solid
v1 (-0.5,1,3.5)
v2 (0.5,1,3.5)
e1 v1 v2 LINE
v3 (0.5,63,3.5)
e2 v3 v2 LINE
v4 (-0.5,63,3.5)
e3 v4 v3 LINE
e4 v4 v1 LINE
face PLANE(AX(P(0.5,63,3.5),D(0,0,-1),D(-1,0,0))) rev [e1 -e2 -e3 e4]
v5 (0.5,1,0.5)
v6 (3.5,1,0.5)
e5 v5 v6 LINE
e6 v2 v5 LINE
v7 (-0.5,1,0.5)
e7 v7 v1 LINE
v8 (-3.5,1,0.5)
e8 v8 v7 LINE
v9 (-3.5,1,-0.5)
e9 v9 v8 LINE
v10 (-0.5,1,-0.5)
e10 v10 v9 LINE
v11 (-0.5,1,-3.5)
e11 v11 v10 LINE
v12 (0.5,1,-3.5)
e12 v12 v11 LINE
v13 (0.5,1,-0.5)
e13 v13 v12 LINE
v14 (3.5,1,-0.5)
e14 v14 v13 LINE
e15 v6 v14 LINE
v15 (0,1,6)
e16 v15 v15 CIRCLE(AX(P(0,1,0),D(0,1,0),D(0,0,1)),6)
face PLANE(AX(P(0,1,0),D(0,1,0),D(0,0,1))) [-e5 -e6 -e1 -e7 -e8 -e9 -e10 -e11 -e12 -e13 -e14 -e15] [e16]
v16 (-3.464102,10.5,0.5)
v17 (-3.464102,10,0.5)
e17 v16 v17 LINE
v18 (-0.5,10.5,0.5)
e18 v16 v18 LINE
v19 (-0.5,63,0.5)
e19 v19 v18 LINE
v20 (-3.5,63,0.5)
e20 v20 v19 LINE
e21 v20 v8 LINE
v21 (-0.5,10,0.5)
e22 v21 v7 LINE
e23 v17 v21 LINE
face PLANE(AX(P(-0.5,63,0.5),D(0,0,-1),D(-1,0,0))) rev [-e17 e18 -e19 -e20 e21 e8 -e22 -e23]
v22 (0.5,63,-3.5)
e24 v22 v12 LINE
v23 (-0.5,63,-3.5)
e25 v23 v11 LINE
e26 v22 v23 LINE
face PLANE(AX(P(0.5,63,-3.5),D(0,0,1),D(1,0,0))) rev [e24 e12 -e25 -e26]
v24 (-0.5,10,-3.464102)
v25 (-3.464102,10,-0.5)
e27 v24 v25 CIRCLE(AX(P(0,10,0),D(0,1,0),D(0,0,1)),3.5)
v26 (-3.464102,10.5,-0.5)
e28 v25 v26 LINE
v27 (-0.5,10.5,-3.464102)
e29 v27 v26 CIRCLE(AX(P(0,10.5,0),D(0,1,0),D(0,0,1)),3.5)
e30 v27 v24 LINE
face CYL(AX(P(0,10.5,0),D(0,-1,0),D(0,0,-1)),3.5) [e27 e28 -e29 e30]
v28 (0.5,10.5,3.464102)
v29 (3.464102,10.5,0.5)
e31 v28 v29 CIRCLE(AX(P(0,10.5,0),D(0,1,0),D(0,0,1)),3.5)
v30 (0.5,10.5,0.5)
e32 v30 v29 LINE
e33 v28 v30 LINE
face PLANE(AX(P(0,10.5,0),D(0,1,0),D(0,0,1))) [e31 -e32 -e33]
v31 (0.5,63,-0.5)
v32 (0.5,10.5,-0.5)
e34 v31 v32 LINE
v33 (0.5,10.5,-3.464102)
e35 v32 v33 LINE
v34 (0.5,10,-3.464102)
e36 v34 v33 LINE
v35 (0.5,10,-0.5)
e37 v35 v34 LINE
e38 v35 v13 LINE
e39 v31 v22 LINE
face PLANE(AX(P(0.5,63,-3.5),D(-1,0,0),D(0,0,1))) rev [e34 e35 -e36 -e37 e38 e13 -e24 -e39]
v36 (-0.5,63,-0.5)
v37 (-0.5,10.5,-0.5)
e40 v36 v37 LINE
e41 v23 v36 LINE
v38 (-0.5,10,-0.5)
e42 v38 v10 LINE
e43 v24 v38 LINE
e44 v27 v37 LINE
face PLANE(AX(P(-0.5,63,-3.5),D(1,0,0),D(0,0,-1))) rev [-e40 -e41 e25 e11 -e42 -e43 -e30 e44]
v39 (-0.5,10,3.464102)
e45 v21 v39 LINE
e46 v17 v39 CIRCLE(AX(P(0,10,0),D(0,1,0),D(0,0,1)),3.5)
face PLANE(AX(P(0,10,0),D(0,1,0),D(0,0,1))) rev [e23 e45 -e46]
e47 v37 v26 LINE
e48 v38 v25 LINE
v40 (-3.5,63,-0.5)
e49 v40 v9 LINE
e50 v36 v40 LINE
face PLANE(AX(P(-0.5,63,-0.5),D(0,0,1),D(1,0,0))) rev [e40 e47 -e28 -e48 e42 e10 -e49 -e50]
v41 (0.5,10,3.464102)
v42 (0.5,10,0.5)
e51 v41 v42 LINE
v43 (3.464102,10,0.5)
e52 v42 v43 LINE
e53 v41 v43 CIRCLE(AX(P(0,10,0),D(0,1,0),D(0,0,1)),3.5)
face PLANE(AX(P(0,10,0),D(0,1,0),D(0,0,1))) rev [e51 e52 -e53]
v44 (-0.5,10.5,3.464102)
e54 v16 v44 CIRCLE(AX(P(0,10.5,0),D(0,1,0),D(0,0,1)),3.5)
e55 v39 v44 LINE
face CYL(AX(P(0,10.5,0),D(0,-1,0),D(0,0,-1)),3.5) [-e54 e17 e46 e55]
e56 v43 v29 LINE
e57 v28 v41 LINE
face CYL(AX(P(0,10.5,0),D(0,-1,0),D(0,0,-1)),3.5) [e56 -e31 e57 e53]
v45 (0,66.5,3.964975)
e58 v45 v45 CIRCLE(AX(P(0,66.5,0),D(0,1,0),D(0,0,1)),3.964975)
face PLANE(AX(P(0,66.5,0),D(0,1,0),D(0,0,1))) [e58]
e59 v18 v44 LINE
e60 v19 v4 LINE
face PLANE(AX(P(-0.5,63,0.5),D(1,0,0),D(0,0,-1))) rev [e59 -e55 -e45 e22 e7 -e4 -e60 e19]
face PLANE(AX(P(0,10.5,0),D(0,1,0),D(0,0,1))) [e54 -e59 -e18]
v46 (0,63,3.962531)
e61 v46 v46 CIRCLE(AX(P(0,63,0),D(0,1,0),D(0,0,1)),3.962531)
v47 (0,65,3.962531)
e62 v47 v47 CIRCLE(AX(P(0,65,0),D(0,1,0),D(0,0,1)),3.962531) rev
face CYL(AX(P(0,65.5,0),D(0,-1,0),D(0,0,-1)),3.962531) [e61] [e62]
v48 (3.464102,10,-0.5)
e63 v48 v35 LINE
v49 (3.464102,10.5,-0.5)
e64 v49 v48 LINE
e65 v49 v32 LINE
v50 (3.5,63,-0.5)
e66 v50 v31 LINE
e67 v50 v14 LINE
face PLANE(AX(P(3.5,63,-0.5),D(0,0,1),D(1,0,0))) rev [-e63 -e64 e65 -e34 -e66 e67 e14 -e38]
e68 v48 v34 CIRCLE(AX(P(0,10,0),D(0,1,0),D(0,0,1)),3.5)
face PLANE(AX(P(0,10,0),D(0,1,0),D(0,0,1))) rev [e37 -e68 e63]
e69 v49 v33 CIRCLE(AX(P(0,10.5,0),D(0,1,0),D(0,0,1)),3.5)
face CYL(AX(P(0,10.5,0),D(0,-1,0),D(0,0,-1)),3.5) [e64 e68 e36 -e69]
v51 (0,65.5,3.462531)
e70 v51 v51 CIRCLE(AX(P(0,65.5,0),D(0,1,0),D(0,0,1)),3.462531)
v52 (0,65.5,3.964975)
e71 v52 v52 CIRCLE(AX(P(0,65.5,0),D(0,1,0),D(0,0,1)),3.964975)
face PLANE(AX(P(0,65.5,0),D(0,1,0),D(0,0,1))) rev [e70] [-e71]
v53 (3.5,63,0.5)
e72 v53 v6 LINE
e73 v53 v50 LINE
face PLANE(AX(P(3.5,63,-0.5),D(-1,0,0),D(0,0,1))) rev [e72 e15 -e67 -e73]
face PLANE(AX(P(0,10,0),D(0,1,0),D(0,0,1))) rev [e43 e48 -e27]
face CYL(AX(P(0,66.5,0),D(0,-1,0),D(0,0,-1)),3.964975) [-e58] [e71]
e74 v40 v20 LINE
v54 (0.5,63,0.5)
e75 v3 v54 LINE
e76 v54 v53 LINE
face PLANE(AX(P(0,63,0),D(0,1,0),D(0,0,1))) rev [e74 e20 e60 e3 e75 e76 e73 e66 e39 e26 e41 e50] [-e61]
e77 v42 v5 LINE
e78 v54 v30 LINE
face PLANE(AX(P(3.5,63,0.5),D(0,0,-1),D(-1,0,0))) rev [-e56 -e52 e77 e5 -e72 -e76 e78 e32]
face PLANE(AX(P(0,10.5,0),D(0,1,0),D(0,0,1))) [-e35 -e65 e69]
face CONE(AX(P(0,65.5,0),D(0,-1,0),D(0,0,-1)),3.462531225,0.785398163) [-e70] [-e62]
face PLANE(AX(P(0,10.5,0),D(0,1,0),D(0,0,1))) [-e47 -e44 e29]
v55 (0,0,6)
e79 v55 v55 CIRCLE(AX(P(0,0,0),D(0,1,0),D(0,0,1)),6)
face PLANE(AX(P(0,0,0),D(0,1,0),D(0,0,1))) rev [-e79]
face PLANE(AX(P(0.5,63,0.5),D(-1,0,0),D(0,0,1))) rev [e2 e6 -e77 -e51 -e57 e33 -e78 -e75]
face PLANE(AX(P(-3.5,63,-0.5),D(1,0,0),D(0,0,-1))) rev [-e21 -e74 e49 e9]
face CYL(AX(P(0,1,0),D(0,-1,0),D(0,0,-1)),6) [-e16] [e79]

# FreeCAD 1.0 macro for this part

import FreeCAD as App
import Part
import Sketcher


def edges_at(feature, points):
    """Names of the edges that pass closest to the given points."""
    edges = feature.Shape.Edges
    near = lambda p: min(range(len(edges)), key=lambda i: edges[i].distToShape(Part.Vertex(*p))[0])
    return sorted({f"Edge{near(p) + 1}" for p in points})


def add_polygon(sketch, points):
    """Adds a closed chain of lines whose ends are joined by coincident constraints."""
    first, n = sketch.GeometryCount, len(points)
    for a, b in zip(points, points[1:] + points[:1]):
        sketch.addGeometry(Part.LineSegment(App.Vector(*a, 0), App.Vector(*b, 0)), False)
    for i in range(n):
        sketch.addConstraint(Sketcher.Constraint("Coincident", first + i, 2, first + (i + 1) % n, 1))

doc = App.newDocument("Part")
body = doc.addObject("PartDesign::Body", "Body")

sketch1 = body.newObject("Sketcher::SketchObject", "Sketch")
sketch1.AttachmentSupport = (doc.getObject("XZ_Plane"), [""])
sketch1.MapMode = "FlatFace"
sketch1.addGeometry(Part.Circle(App.Vector(0, 0, 0), App.Vector(0, 0, 1), 6), False)
sketch1.addConstraint([
    Sketcher.Constraint("Coincident", 0, 3, -1, 1),
    Sketcher.Constraint("Diameter", 0, 12.0),
])
pad1 = body.newObject("PartDesign::Pad", "Pad")
pad1.Profile = sketch1
pad1.Length = 1
pad1.Reversed = True

sketch2 = body.newObject("Sketcher::SketchObject", "Sketch001")
sketch2.AttachmentSupport = (doc.getObject("XZ_Plane"), [""])
sketch2.MapMode = "FlatFace"
sketch2.AttachmentOffset = App.Placement(App.Vector(0, 0, -1), App.Rotation())
add_polygon(sketch2, [(-0.5, 0.5), (-0.5, 3.5), (0.5, 3.5), (0.5, 0.5), (3.5, 0.5), (3.5, -0.5), (0.5, -0.5), (0.5, -3.5), (-0.5, -3.5), (-0.5, -0.5), (-3.5, -0.5), (-3.5, 0.5)])
sketch2.addConstraint([
    Sketcher.Constraint("Vertical", 0),
    Sketcher.Constraint("Horizontal", 1),
    Sketcher.Constraint("Vertical", 2),
    Sketcher.Constraint("Horizontal", 3),
    Sketcher.Constraint("Vertical", 4),
    Sketcher.Constraint("Horizontal", 5),
    Sketcher.Constraint("Vertical", 6),
    Sketcher.Constraint("Horizontal", 7),
    Sketcher.Constraint("Vertical", 8),
    Sketcher.Constraint("Horizontal", 9),
    Sketcher.Constraint("Vertical", 10),
    Sketcher.Constraint("Horizontal", 11),
    Sketcher.Constraint("Symmetric", 0, 2, 6, 2, -1, 1),
    Sketcher.Constraint("Symmetric", 2, 2, 8, 2, -1, 1),
    Sketcher.Constraint("Symmetric", 4, 2, 10, 2, -1, 1),
    Sketcher.Constraint("Symmetric", 5, 2, 8, 2, -2),
    Sketcher.Constraint("Equal", 11, 0),
    Sketcher.Constraint("Equal", 7, 4),
    Sketcher.Constraint("DistanceX", 1, 1, 1, 2, 1.0),
    Sketcher.Constraint("DistanceX", 3, 1, 3, 2, 3.0),
])
pad2 = body.newObject("PartDesign::Pad", "Pad001")
pad2.Profile = sketch2
pad2.Length = 62
pad2.Reversed = True

sketch3 = body.newObject("Sketcher::SketchObject", "Sketch002")
sketch3.AttachmentSupport = (doc.getObject("XZ_Plane"), [""])
sketch3.MapMode = "FlatFace"
sketch3.AttachmentOffset = App.Placement(App.Vector(0, 0, -10), App.Rotation())
sketch3.addGeometry(Part.Circle(App.Vector(0, 0, 0), App.Vector(0, 0, 1), 3.5), False)
sketch3.addConstraint([
    Sketcher.Constraint("Coincident", 0, 3, -1, 1),
    Sketcher.Constraint("Diameter", 0, 7.0),
])
pad3 = body.newObject("PartDesign::Pad", "Pad002")
pad3.Profile = sketch3
pad3.Length = 0.5
pad3.Reversed = True

sketch4 = body.newObject("Sketcher::SketchObject", "Sketch003")
sketch4.AttachmentSupport = (doc.getObject("XZ_Plane"), [""])
sketch4.MapMode = "FlatFace"
sketch4.AttachmentOffset = App.Placement(App.Vector(0, 0, -63), App.Rotation())
sketch4.addGeometry(Part.Circle(App.Vector(0, 0, 0), App.Vector(0, 0, 1), 0.533757), False)
sketch4.addConstraint([
    Sketcher.Constraint("Coincident", 0, 3, -1, 1),
    Sketcher.Constraint("Diameter", 0, 1.067514),
])
pad4 = body.newObject("PartDesign::Pad", "Pad003")
pad4.Profile = sketch4
pad4.Length = 1.5
pad4.Reversed = True

sketch5 = body.newObject("Sketcher::SketchObject", "Sketch004")
sketch5.AttachmentSupport = (doc.getObject("XZ_Plane"), [""])
sketch5.MapMode = "FlatFace"
sketch5.AttachmentOffset = App.Placement(App.Vector(0, 0, -63), App.Rotation())
sketch5.addGeometry(Part.Circle(App.Vector(0, 0, 0), App.Vector(0, 0, 1), 3.962531), False)
sketch5.addConstraint([
    Sketcher.Constraint("Coincident", 0, 3, -1, 1),
    Sketcher.Constraint("Diameter", 0, 7.925062),
])
pad5 = body.newObject("PartDesign::Pad", "Pad004")
pad5.Profile = sketch5
pad5.Length = 2.5
pad5.Reversed = True
doc.recompute()

chamfer = body.newObject("PartDesign::Chamfer", "Chamfer")
chamfer.Base = (pad5, edges_at(pad5, [(0, 65.5, -3.963)]))
chamfer.Size = 0.5

sketch6 = body.newObject("Sketcher::SketchObject", "Sketch005")
sketch6.AttachmentSupport = (doc.getObject("XZ_Plane"), [""])
sketch6.MapMode = "FlatFace"
sketch6.AttachmentOffset = App.Placement(App.Vector(0, 0, -65.5), App.Rotation())
sketch6.addGeometry(Part.Circle(App.Vector(0, 0, 0), App.Vector(0, 0, 1), 3.964975), False)
sketch6.addConstraint([
    Sketcher.Constraint("Coincident", 0, 3, -1, 1),
    Sketcher.Constraint("Diameter", 0, 7.92995),
])
pad6 = body.newObject("PartDesign::Pad", "Pad005")
pad6.Profile = sketch6
pad6.Length = 1
pad6.Reversed = True

doc.recompute()
